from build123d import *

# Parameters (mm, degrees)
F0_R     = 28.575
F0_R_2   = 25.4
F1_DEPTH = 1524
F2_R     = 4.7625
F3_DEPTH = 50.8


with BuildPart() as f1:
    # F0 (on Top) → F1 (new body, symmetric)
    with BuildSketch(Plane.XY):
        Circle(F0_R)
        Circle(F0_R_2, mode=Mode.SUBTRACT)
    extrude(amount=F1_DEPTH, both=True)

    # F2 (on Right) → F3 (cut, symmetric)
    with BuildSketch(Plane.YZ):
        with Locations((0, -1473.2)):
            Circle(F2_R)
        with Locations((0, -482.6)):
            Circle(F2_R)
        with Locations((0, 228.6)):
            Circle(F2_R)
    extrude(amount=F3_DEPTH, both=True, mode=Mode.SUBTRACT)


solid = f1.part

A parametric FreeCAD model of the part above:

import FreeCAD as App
import Part
import Sketcher

V = App.Vector
Q = App.Units.Quantity

doc = App.newDocument("Part")
params = doc.addObject("Spreadsheet::Sheet", "Params")
for row, (alias, value) in enumerate([
    ("sketch1_diameter", "2 in"),
    ("sketch1_diameter2", "2.25 in"),
    ("pad1_length", "120 in"),
    ("sketch2_diameter", "0.375 in"),
    ("pocket1_length", "4 in"),
], start=1):
    params.set(f"A{row}", alias)
    params.set(f"B{row}", "=" + value)
    params.setAlias(f"B{row}", alias)

body = doc.addObject("PartDesign::Body", "Body")

# Sketch on XY plane
sketch1 = doc.addObject("Sketcher::SketchObject", "Sketch")
body.addObject(sketch1)
sketch1.AttachmentSupport = (doc.XY_Plane, [""])
sketch1.MapMode = "FlatFace"
sketch1.addGeometry(Part.Circle(V(0, 0, 0), V(0, 0, 1), 29), False)
sketch1.addGeometry(Part.Circle(V(0, 0, 0), V(0, 0, 1), 25), False)
sketch1.addConstraint(Sketcher.Constraint("Coincident", 0, 3, -1, 1))
sketch1.addConstraint(Sketcher.Constraint("Coincident", 1, 3, -1, 1))
sketch1.addConstraint(Sketcher.Constraint("Diameter", 1, Q("2 in")))
sketch1.addConstraint(Sketcher.Constraint("Diameter", 0, Q("2.25 in")))
sketch1.setExpression("Constraints[2]", "Params.sketch1_diameter")
sketch1.setExpression("Constraints[3]", "Params.sketch1_diameter2")
pad1 = doc.addObject("PartDesign::Pad", "Pad")
body.addObject(pad1)
pad1.Profile = sketch1
pad1.setExpression("Length", "Params.pad1_length")
pad1.Midplane = True

# Sketch on YZ plane
sketch2 = doc.addObject("Sketcher::SketchObject", "Sketch001")
body.addObject(sketch2)
sketch2.AttachmentSupport = (doc.YZ_Plane, [""])
sketch2.MapMode = "FlatFace"
sketch2.addGeometry(Part.Circle(V(0, -1473.2, 0), V(0, 0, 1), 4.8), False)
sketch2.addGeometry(Part.Circle(V(0, -482.6, 0), V(0, 0, 1), 4.8), False)
sketch2.addGeometry(Part.Circle(V(0, 228.6, 0), V(0, 0, 1), 4.8), False)
sketch2.addConstraint(Sketcher.Constraint("Equal", 0, 1))
sketch2.addConstraint(Sketcher.Constraint("Equal", 1, 2))
sketch2.addConstraint(Sketcher.Constraint("PointOnObject", 0, 3, -2))
sketch2.addConstraint(Sketcher.Constraint("PointOnObject", 1, 3, -2))
sketch2.addConstraint(Sketcher.Constraint("PointOnObject", 2, 3, -2))
sketch2.addConstraint(Sketcher.Constraint("Diameter", 0, Q("0.375 in")))
sketch2.addConstraint(Sketcher.Constraint("DistanceY", 0, 3, -1, 1, Q("58 in")))
sketch2.addConstraint(Sketcher.Constraint("DistanceY", 1, 3, -1, 1, Q("19 in")))
sketch2.addConstraint(Sketcher.Constraint("DistanceY", -1, 1, 2, 3, Q("9 in")))
sketch2.setExpression("Constraints[5]", "Params.sketch2_diameter")
pocket1 = doc.addObject("PartDesign::Pocket", "Pocket")
body.addObject(pocket1)
pocket1.Profile = sketch2
pocket1.setExpression("Length", "Params.pocket1_length")
pocket1.Midplane = True

doc.recompute()
